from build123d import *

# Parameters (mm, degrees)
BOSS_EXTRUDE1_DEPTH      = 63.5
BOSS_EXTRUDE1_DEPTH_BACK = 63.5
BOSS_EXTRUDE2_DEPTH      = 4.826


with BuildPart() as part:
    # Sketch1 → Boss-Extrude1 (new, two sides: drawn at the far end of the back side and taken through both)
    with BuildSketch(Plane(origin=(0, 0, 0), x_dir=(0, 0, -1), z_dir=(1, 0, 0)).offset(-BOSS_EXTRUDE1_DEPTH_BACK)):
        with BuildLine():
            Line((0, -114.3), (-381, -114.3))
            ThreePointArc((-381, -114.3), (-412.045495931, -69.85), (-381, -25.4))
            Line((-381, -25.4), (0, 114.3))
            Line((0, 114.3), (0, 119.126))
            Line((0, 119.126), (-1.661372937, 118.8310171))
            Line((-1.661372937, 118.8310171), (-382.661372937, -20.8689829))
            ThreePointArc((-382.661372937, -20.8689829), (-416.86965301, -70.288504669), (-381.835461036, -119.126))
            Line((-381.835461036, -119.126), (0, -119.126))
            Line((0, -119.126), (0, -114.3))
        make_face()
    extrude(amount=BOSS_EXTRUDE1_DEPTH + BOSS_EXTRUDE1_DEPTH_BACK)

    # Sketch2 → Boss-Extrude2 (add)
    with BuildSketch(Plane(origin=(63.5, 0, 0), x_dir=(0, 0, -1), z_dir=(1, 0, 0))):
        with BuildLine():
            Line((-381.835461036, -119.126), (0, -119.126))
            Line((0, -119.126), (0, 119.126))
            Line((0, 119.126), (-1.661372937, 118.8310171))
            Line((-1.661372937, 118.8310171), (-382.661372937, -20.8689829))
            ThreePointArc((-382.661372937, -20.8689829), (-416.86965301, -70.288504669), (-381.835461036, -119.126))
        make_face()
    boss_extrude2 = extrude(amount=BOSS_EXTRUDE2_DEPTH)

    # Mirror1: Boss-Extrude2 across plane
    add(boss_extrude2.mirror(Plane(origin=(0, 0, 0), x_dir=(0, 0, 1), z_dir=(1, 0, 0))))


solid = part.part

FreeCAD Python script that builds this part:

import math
import FreeCAD as App
import Part
import Sketcher
Q = App.Units.Quantity

doc = App.newDocument("Part")
body = doc.addObject("PartDesign::Body", "Body")

sketch1 = body.newObject("Sketcher::SketchObject", "Sketch")
sketch1.AttachmentSupport = (doc.getObject("YZ_Plane"), [""])
sketch1.MapMode = "FlatFace"
sketch1.addGeometry([
    Part.LineSegment(App.Vector(-114.3, 0, 0), App.Vector(-114.3, 381, 0)),
    Part.ArcOfCircle(Part.Circle(App.Vector(-69.8, 364.7, 0), App.Vector(0, 0, 1), 47.3), math.radians(20), math.radians(160)),
    Part.LineSegment(App.Vector(-25.4, 381, 0), App.Vector(114.3, 0, 0)),
    Part.LineSegment(App.Vector(114.3, 0, 0), App.Vector(119.1, 0, 0)),
    Part.LineSegment(App.Vector(119.1, 0, 0), App.Vector(118.8, 1.7, 0)),
    Part.LineSegment(App.Vector(118.8, 1.7, 0), App.Vector(-20.9, 382.7, 0)),
    Part.ArcOfCircle(Part.Circle(App.Vector(-69.8, 364.7, 0), App.Vector(0, 0, 1), 52.2), math.radians(20), math.radians(161)),
    Part.LineSegment(App.Vector(-119.1, 381.8, 0), App.Vector(-119.1, 0, 0)),
    Part.LineSegment(App.Vector(-119.1, 0, 0), App.Vector(-114.3, 0, 0)),
], False)
sketch1.addConstraint([
    Sketcher.Constraint("Coincident", 0, 2, 1, 2),
    Sketcher.Constraint("Tangent", 1, 1, 2, 1),
    Sketcher.Constraint("Coincident", 2, 2, 3, 1),
    Sketcher.Constraint("Coincident", 3, 2, 4, 1),
    Sketcher.Constraint("Coincident", 4, 2, 5, 1),
    Sketcher.Constraint("Tangent", 5, 2, 6, 1),
    Sketcher.Constraint("Coincident", 6, 2, 7, 1),
    Sketcher.Constraint("Coincident", 7, 2, 8, 1),
    Sketcher.Constraint("Coincident", 8, 2, 0, 1),
    Sketcher.Constraint("Vertical", 0),
    Sketcher.Constraint("Horizontal", 3),
    Sketcher.Constraint("Vertical", 7),
    Sketcher.Constraint("Horizontal", 8),
    Sketcher.Constraint("Coincident", 6, 3, 1, 3),
    Sketcher.Constraint("Symmetric", 3, 2, 7, 2, -1, 1),
    Sketcher.Constraint("Symmetric", 2, 2, 8, 2, -2),
    Sketcher.Constraint("Parallel", 2, 5),
    Sketcher.Constraint("Horizontal", 0, 2, 1, 1),
    Sketcher.Constraint("Equal", 2, 5),
    Sketcher.Constraint("DistanceY", 0, 1, 0, 2, Q("15 in")),
    Sketcher.Constraint("DistanceX", 1, 1, -1, 1, Q("1 in")),
    Sketcher.Constraint("DistanceX", 0, 2, 2, 2, Q("9 in")),
    Sketcher.Constraint("DistanceX", 3, 1, 3, 2, Q("0.19 in")),
    Sketcher.Constraint("Radius", 6, Q("52.169829 mm")),
])
pad1 = body.newObject("PartDesign::Pad", "Pad")
pad1.Profile = sketch1
pad1.Type = "TwoLengths"
pad1.Length = Q("2.5 in")
pad1.Length2 = Q("2.5 in")

sketch2 = body.newObject("Sketcher::SketchObject", "Sketch001")
sketch2.AttachmentSupport = (doc.getObject("YZ_Plane"), [""])
sketch2.MapMode = "FlatFace"
sketch2.AttachmentOffset = App.Placement(App.Vector(0, 0, 2.5 * 25.4), App.Rotation())
sketch2.addGeometry([
    Part.LineSegment(App.Vector(-119.1, 381.8, 0), App.Vector(-119.1, 0, 0)),
    Part.LineSegment(App.Vector(-119.1, 0, 0), App.Vector(119.1, 0, 0)),
    Part.LineSegment(App.Vector(119.1, 0, 0), App.Vector(118.8, 1.7, 0)),
    Part.LineSegment(App.Vector(118.8, 1.7, 0), App.Vector(-20.9, 382.7, 0)),
    Part.ArcOfCircle(Part.Circle(App.Vector(-69.8, 364.7, 0), App.Vector(0, 0, 1), 52.2), math.radians(20), math.radians(161)),
], False)
sketch2.addConstraint([
    Sketcher.Constraint("Coincident", 0, 2, 1, 1),
    Sketcher.Constraint("Coincident", 1, 2, 2, 1),
    Sketcher.Constraint("Coincident", 2, 2, 3, 1),
    Sketcher.Constraint("Tangent", 3, 2, 4, 1),
    Sketcher.Constraint("Coincident", 4, 2, 0, 1),
    Sketcher.Constraint("Vertical", 0),
    Sketcher.Constraint("Horizontal", 1),
    Sketcher.Constraint("Symmetric", 0, 2, 1, 2, -1, 1),
    Sketcher.Constraint("DistanceY", 2, 2, 3, 2, Q("15 in")),
    Sketcher.Constraint("DistanceX", 1, 1, 1, 2, Q("9.38 in")),
    Sketcher.Constraint("DistanceX", 3, 2, 2, 2, Q("5.5 in")),
    Sketcher.Constraint("DistanceX", 4, 3, -1, 1, Q("2.75 in")),
    Sketcher.Constraint("Radius", 4, Q("52.169829 mm")),
    Sketcher.Constraint("DistanceY", 0, 2, 0, 1, Q("381.835461 mm")),
])
pad2 = body.newObject("PartDesign::Pad", "Pad001")
pad2.Profile = sketch2
pad2.Length = Q("0.19 in")
doc.recompute()

mirrored = body.newObject("PartDesign::Mirrored", "Mirrored")
mirrored.Originals = [pad2]
mirrored.MirrorPlane = (doc.getObject("YZ_Plane"), [""])
body.Tip = mirrored

doc.recompute()
